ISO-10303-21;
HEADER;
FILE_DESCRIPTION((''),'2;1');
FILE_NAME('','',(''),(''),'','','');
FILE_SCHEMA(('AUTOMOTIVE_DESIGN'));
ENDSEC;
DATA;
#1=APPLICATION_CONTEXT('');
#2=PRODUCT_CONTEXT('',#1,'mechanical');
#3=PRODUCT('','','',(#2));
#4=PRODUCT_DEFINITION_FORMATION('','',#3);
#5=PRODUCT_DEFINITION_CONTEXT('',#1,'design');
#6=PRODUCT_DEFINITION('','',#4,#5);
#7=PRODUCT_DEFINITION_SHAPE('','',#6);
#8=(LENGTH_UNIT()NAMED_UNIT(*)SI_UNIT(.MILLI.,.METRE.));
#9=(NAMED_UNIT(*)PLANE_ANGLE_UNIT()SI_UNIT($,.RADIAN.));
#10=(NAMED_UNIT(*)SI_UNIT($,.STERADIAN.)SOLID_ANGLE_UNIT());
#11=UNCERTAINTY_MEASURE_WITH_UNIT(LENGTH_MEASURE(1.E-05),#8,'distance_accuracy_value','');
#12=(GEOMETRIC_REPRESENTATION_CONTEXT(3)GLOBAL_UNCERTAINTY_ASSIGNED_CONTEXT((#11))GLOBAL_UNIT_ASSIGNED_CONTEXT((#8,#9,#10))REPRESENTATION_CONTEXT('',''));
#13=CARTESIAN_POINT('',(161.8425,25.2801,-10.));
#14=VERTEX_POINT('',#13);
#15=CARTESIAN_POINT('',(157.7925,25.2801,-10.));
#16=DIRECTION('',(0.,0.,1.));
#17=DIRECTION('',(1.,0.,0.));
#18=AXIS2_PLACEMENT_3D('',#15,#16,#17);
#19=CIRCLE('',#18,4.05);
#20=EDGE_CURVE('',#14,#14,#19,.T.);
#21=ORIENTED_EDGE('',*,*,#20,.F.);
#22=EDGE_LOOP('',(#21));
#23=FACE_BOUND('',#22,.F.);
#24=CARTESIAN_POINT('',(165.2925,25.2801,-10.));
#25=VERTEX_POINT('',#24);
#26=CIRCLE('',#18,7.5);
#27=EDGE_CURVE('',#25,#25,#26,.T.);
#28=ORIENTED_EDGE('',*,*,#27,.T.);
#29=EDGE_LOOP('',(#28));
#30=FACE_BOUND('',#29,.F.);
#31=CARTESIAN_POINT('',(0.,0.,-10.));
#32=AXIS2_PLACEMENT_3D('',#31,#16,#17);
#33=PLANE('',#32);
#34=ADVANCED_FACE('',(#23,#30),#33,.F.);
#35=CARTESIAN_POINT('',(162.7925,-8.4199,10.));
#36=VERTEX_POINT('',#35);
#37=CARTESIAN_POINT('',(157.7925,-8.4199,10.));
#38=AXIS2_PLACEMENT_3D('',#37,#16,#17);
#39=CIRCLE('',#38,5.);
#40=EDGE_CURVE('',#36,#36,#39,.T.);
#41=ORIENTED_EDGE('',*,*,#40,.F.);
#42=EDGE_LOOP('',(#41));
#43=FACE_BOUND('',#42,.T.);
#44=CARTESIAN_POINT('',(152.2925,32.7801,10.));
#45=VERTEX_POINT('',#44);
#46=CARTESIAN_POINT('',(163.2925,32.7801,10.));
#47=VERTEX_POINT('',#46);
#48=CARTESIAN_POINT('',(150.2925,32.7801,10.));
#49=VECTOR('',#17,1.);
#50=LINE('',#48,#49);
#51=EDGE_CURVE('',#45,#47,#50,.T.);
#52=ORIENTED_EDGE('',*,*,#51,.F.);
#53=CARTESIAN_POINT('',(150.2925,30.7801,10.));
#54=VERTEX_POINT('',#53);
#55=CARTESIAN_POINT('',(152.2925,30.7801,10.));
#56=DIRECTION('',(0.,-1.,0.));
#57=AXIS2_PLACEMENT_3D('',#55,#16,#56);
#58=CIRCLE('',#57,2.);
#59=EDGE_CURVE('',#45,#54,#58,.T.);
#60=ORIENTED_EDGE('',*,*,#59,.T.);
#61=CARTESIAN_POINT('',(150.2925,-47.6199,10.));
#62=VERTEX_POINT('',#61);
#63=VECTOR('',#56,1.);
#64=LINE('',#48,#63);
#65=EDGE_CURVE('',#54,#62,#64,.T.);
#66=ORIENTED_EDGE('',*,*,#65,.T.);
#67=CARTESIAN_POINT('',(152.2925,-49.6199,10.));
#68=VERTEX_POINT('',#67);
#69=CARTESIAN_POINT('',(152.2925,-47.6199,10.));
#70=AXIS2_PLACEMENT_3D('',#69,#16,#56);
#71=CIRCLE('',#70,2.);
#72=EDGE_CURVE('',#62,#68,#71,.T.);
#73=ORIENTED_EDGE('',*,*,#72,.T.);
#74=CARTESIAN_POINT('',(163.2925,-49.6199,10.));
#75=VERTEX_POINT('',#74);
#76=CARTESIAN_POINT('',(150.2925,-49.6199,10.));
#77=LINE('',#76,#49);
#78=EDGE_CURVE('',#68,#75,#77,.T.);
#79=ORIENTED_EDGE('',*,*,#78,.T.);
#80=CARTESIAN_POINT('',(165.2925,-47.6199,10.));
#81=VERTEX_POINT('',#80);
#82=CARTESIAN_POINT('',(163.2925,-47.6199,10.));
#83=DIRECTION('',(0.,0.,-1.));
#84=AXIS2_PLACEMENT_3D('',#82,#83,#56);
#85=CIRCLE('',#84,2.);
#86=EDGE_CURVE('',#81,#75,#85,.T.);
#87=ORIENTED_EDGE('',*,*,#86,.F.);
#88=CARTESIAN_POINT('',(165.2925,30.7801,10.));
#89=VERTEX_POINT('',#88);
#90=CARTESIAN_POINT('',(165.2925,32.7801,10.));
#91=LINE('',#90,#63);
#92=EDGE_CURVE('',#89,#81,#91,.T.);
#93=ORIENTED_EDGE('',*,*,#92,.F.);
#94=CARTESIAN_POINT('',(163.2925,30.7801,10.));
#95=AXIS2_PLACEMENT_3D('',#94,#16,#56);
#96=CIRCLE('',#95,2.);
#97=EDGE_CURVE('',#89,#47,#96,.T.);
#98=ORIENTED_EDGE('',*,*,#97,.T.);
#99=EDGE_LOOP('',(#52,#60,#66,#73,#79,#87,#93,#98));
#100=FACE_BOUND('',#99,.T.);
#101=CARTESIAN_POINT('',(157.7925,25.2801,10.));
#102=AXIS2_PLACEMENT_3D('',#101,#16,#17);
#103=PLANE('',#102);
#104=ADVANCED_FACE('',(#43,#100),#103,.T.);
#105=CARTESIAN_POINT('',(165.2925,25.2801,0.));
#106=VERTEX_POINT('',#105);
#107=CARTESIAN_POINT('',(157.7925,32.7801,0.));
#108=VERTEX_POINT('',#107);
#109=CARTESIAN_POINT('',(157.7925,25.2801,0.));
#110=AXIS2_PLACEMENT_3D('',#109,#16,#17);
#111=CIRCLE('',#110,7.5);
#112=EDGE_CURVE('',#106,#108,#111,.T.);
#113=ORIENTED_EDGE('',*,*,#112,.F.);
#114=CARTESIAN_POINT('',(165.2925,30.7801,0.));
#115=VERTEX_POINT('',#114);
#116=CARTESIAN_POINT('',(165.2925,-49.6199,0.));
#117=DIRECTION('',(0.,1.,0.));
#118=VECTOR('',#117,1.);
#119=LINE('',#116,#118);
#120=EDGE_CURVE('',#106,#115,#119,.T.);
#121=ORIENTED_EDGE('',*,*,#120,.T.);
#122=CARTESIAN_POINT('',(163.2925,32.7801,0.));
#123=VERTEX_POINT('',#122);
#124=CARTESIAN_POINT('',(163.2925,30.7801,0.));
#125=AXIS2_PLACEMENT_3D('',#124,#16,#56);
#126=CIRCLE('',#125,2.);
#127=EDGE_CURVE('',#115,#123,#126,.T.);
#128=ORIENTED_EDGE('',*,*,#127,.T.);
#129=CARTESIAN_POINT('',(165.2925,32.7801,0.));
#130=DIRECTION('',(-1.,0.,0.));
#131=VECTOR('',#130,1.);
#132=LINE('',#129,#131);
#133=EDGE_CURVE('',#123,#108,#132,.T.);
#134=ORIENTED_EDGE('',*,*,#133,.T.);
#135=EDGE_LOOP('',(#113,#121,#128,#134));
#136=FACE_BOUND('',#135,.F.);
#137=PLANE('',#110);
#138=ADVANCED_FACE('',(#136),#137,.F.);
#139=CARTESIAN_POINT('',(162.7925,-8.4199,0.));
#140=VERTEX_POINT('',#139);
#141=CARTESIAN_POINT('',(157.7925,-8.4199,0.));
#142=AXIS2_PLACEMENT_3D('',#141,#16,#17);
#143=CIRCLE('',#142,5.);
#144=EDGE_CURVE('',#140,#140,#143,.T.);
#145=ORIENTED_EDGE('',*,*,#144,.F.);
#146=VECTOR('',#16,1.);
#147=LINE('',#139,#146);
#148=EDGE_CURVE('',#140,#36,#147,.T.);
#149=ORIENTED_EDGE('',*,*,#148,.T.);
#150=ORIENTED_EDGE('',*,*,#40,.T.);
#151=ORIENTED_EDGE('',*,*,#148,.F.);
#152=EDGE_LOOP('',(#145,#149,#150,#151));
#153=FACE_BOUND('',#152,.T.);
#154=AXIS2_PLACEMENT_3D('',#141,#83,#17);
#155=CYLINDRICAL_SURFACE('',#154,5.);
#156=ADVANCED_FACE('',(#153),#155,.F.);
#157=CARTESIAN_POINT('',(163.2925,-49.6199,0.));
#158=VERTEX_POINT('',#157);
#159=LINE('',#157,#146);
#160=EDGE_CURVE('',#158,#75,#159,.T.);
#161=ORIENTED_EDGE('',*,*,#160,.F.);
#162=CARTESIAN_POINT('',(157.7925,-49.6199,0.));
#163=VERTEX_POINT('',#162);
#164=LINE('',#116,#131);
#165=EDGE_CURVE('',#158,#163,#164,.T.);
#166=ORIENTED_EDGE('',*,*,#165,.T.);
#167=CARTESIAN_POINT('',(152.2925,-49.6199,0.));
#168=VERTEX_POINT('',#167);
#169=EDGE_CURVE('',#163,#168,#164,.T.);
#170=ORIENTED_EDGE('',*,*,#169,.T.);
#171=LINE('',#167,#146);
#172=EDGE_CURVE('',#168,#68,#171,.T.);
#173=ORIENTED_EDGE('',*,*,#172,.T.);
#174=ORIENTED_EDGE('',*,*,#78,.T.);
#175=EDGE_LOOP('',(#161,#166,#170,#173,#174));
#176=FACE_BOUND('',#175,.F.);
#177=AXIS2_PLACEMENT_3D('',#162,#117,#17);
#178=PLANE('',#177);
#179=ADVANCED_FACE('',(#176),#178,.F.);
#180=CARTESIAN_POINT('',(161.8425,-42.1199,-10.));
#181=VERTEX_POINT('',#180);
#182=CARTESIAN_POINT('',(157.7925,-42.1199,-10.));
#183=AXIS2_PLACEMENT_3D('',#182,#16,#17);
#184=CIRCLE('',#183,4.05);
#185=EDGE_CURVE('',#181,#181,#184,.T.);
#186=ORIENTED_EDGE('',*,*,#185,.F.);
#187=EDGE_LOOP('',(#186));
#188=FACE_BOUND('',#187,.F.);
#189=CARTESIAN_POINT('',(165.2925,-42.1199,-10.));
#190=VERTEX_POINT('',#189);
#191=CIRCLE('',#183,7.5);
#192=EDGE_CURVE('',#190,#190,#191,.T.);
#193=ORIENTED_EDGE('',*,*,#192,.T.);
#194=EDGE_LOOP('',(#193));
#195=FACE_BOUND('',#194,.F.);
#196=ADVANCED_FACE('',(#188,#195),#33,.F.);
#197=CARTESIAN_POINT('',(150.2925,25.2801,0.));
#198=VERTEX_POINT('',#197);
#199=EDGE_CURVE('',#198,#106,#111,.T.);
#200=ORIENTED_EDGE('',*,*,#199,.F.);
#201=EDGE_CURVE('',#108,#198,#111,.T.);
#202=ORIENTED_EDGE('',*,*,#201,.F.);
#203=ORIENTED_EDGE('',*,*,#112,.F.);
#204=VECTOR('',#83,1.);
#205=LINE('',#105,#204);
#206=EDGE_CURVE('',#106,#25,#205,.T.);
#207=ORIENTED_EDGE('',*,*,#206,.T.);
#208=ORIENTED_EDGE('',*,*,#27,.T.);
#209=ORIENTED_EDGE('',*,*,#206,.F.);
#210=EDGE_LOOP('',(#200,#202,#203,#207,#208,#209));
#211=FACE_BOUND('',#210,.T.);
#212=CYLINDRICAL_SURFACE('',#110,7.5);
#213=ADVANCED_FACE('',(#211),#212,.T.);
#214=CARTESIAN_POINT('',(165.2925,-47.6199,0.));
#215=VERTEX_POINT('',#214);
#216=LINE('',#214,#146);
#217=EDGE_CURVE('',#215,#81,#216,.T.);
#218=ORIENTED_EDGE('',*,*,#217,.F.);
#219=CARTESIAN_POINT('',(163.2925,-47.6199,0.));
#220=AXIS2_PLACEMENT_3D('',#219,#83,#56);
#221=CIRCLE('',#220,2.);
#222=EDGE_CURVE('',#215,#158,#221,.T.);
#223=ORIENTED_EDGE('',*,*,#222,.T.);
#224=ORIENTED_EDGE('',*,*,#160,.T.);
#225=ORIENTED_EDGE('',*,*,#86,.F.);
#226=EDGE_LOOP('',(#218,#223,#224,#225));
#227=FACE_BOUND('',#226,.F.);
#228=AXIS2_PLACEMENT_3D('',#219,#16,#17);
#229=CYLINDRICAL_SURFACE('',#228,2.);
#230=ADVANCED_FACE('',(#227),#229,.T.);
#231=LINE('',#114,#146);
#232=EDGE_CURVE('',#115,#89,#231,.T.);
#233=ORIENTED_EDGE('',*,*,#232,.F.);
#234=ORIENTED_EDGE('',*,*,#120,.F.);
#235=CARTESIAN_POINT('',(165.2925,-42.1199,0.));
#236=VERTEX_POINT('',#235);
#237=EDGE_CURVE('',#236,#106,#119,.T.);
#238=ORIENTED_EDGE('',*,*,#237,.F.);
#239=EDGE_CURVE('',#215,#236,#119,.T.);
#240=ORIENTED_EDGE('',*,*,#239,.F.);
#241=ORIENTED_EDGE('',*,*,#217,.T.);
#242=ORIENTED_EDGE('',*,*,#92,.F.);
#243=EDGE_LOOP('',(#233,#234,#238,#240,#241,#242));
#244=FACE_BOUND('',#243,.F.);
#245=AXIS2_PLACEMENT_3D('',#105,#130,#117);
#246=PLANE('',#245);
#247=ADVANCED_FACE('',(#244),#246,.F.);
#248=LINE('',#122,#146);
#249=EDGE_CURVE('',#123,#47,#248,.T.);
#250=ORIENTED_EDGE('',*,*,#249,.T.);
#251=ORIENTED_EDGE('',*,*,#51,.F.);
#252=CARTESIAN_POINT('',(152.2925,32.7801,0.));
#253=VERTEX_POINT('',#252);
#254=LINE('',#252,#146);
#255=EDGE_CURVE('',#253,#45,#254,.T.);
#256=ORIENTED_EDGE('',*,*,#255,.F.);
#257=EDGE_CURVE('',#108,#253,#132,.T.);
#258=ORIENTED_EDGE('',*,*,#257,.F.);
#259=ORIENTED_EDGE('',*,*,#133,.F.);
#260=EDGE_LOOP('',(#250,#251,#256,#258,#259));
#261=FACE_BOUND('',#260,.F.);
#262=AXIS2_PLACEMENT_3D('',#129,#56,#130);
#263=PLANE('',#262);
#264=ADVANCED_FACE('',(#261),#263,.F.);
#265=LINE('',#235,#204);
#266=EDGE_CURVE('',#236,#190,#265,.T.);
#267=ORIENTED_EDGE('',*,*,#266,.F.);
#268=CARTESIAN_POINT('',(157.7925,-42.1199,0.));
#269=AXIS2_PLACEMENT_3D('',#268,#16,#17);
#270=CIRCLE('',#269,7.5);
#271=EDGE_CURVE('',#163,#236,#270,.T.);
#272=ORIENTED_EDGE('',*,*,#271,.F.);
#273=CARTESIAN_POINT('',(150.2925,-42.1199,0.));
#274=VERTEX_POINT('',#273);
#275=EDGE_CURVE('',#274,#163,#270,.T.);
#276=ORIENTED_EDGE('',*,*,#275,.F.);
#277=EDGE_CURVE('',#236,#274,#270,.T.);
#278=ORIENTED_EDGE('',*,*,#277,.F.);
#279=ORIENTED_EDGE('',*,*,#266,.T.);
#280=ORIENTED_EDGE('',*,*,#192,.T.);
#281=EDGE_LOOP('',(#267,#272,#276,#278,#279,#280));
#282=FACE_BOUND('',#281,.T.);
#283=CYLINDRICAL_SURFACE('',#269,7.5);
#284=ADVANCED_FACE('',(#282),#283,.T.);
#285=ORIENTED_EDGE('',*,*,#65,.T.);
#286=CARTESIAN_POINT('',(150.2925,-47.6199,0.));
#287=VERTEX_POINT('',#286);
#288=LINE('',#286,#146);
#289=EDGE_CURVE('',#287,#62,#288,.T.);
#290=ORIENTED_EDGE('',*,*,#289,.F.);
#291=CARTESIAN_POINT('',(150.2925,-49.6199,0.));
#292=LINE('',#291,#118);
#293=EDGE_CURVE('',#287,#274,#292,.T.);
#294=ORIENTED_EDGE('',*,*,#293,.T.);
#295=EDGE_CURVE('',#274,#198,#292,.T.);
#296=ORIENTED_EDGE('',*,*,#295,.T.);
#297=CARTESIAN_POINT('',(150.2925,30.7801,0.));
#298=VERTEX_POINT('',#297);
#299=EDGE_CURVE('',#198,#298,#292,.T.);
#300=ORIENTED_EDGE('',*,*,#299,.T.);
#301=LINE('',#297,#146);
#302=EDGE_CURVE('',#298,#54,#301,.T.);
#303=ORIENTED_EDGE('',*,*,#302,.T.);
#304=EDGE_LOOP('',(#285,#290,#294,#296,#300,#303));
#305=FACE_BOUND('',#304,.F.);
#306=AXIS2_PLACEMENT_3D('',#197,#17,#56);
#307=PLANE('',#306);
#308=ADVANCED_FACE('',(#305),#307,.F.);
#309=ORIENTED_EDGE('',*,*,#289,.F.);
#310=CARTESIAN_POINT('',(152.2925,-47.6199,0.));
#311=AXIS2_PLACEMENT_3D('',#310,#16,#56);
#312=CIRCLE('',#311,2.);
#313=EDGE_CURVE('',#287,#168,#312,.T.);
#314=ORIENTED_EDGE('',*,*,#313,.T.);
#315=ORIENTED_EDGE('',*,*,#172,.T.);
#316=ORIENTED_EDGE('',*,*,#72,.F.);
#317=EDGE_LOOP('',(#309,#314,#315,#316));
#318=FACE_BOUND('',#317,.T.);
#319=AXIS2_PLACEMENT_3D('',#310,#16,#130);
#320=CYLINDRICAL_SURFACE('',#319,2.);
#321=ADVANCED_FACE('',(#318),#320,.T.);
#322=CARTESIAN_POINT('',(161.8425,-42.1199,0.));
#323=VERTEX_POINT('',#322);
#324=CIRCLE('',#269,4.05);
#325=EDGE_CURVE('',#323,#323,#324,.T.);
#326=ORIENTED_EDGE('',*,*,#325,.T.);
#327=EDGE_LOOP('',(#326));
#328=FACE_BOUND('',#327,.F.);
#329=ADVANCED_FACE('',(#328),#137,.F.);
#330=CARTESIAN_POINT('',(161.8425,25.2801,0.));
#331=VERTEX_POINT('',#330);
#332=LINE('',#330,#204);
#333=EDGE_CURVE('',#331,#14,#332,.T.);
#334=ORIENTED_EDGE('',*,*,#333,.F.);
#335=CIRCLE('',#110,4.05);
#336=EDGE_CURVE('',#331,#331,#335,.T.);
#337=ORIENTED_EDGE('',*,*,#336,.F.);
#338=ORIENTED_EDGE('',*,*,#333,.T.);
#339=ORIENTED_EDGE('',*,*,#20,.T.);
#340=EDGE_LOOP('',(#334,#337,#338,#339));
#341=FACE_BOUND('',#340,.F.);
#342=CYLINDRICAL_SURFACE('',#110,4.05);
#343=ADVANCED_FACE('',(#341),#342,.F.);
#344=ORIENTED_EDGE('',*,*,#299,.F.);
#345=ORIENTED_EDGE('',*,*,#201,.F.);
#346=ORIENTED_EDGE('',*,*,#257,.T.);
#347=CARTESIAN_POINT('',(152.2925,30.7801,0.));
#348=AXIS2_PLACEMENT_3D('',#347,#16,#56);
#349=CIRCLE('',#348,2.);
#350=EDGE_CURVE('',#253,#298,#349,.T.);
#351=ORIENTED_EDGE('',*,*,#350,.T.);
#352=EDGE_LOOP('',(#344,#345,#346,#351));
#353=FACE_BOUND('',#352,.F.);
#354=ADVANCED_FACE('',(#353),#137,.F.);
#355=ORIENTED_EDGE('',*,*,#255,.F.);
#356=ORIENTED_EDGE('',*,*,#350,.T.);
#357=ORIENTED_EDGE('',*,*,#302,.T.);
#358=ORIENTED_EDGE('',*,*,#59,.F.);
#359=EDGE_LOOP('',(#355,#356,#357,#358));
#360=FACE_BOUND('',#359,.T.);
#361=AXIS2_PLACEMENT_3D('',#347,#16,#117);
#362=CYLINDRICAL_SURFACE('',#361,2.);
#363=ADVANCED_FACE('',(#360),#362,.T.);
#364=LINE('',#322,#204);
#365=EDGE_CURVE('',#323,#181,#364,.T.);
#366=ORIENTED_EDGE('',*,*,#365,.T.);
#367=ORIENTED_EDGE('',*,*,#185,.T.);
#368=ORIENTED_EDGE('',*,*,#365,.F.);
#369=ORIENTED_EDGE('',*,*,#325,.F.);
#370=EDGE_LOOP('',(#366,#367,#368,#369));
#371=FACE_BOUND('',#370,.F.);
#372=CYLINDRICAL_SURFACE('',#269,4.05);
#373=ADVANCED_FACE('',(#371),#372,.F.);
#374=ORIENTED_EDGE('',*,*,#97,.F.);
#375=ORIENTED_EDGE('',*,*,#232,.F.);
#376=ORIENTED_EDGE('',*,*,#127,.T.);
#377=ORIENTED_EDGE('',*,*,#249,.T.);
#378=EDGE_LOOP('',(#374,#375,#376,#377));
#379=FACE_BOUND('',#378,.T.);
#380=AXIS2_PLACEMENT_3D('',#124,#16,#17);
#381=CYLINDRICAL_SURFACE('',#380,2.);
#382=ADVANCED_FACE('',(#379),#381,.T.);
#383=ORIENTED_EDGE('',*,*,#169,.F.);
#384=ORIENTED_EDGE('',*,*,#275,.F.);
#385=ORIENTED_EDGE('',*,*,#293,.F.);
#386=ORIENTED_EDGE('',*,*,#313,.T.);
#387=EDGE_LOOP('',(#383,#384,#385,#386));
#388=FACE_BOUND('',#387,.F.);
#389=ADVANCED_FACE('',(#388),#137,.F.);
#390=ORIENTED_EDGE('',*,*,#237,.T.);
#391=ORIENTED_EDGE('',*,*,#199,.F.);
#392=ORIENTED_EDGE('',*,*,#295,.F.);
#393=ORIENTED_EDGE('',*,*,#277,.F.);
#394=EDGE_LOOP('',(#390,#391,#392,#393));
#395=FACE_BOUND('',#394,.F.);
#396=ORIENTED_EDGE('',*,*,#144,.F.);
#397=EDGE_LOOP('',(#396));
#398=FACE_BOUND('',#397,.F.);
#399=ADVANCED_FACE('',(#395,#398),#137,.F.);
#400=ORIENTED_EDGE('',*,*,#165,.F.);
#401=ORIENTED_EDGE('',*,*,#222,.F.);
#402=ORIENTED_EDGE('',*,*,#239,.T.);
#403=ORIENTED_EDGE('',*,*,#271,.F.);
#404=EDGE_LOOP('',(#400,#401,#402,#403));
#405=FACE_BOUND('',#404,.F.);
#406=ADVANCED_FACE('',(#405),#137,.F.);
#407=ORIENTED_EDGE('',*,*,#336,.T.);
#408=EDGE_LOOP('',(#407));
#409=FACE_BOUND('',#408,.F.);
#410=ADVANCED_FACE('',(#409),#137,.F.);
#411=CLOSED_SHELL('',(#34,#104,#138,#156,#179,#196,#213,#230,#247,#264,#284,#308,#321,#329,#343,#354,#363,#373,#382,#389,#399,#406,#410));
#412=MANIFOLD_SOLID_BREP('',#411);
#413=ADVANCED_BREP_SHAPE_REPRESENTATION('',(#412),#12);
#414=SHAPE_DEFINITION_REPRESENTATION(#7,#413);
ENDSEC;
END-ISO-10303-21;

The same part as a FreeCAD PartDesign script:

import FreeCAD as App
import Part
import Sketcher
from FreeCAD import Vector


def edges_at(feature, points):
    """Names of the edges that pass closest to the given points."""
    edges = feature.Shape.Edges
    near = lambda p: min(range(len(edges)), key=lambda i: edges[i].distToShape(Part.Vertex(*p))[0])
    return sorted({f"Edge{near(p) + 1}" for p in points})


def add_polygon(sketch, points):
    """Adds a closed chain of lines whose ends are joined by coincident constraints."""
    first, n = sketch.GeometryCount, len(points)
    for a, b in zip(points, points[1:] + points[:1]):
        sketch.addGeometry(Part.LineSegment(App.Vector(*a, 0), App.Vector(*b, 0)), False)
    for i in range(n):
        sketch.addConstraint(Sketcher.Constraint("Coincident", first + i, 2, first + (i + 1) % n, 1))

doc = App.newDocument("Part")
params = doc.addObject("Spreadsheet::Sheet", "Params")
for row, (alias, value) in enumerate([
    ("sketch1_diameter", "15 mm"),
    ("sketch1_diameter2", "8.1 mm"),
    ("pad1_length", "10 mm"),
    ("sketch2_diameter", "10 mm"),
    ("sketch2_width", "15 mm"),
    ("sketch2_height", "82.4 mm"),
    ("pad2_length", "10 mm"),
    ("fillet_radius", "2 mm"),
], start=1):
    params.set(f"A{row}", alias)
    params.set(f"B{row}", "=" + value)
    params.setAlias(f"B{row}", alias)

body = doc.addObject("PartDesign::Body", "Body")
body.AllowCompound = True

sketch1 = body.newObject("Sketcher::SketchObject", "Sketch")
sketch1.AttachmentSupport = (doc.getObject("XY_Plane"), [""])
sketch1.MapMode = "FlatFace"
sketch1.addGeometry([
    Part.Circle(Vector(157.7925, 25.2801, 0), Vector(0, 0, 1), 7.5),
    Part.Circle(Vector(157.7925, 25.2801, 0), Vector(0, 0, 1), 4.05),
    Part.Circle(Vector(157.7925, -42.1199, 0), Vector(0, 0, 1), 7.5),
    Part.Circle(Vector(157.7925, -42.1199, 0), Vector(0, 0, 1), 4.05),
], False)
sketch1.addConstraint([
    Sketcher.Constraint("Coincident", 1, 3, 0, 3),
    Sketcher.Constraint("Coincident", 3, 3, 2, 3),
    Sketcher.Constraint("Equal", 0, 2),
    Sketcher.Constraint("Equal", 1, 3),
    Sketcher.Constraint("Vertical", 1, 3, 2, 3),
    Sketcher.Constraint("Diameter", 0, 15.0),
    Sketcher.Constraint("Diameter", 1, 8.1),
    Sketcher.Constraint("DistanceY", 2, 3, 0, 3, 67.4),
    Sketcher.Constraint("DistanceY", -1, 1, 0, 3, 25.28),
    Sketcher.Constraint("DistanceX", -1, 1, 0, 3, 157.7925),
])
sketch1.setExpression("Constraints[5]", "Params.sketch1_diameter")
sketch1.setExpression("Constraints[6]", "Params.sketch1_diameter2")
pad1 = body.newObject("PartDesign::Pad", "Pad")
pad1.Profile = sketch1
pad1.setExpression("Length", "Params.pad1_length")
pad1.Reversed = True

sketch2 = body.newObject("Sketcher::SketchObject", "Sketch001")
sketch2.AttachmentSupport = (doc.getObject("XY_Plane"), [""])
sketch2.MapMode = "FlatFace"
add_polygon(sketch2, [(165.2925, 32.7801), (150.2925, 32.7801), (150.2925, -49.6199), (165.2925, -49.6199)])
sketch2.addGeometry(Part.Circle(Vector(157.7925, -8.4199, 0), Vector(0, 0, 1), 5), False)
sketch2.addConstraint([
    Sketcher.Constraint("Horizontal", 0),
    Sketcher.Constraint("Vertical", 1),
    Sketcher.Constraint("Horizontal", 2),
    Sketcher.Constraint("Vertical", 3),
    Sketcher.Constraint("Diameter", 4, 10.0),
    Sketcher.Constraint("DistanceX", 0, 2, 0, 1, 15.0),
    Sketcher.Constraint("DistanceY", 1, 2, 1, 1, 82.4),
    Sketcher.Constraint("DistanceX", 0, 2, 4, 3, 7.5),
    Sketcher.Constraint("DistanceY", 4, 3, 0, 2, 41.2),
    Sketcher.Constraint("DistanceY", 4, 3, -1, 1, 8.42),
    Sketcher.Constraint("DistanceX", -1, 1, 4, 3, 157.7925),
])
sketch2.setExpression("Constraints[8]", "Params.sketch2_diameter")
sketch2.setExpression("Constraints[9]", "Params.sketch2_width")
sketch2.setExpression("Constraints[10]", "Params.sketch2_height")
pad2 = body.newObject("PartDesign::Pad", "Pad001")
pad2.Profile = sketch2
pad2.setExpression("Length", "Params.pad2_length")
doc.recompute()

fillet = body.newObject("PartDesign::Fillet", "Fillet")
fillet.Base = (pad2, edges_at(pad2, [
    (150.292, -49.62, 5),
    (165.292, -49.62, 5),
    (165.292, 32.78, 5),
    (150.292, 32.78, 5),
]))
fillet.setExpression("Radius", "Params.fillet_radius")

doc.recompute()
